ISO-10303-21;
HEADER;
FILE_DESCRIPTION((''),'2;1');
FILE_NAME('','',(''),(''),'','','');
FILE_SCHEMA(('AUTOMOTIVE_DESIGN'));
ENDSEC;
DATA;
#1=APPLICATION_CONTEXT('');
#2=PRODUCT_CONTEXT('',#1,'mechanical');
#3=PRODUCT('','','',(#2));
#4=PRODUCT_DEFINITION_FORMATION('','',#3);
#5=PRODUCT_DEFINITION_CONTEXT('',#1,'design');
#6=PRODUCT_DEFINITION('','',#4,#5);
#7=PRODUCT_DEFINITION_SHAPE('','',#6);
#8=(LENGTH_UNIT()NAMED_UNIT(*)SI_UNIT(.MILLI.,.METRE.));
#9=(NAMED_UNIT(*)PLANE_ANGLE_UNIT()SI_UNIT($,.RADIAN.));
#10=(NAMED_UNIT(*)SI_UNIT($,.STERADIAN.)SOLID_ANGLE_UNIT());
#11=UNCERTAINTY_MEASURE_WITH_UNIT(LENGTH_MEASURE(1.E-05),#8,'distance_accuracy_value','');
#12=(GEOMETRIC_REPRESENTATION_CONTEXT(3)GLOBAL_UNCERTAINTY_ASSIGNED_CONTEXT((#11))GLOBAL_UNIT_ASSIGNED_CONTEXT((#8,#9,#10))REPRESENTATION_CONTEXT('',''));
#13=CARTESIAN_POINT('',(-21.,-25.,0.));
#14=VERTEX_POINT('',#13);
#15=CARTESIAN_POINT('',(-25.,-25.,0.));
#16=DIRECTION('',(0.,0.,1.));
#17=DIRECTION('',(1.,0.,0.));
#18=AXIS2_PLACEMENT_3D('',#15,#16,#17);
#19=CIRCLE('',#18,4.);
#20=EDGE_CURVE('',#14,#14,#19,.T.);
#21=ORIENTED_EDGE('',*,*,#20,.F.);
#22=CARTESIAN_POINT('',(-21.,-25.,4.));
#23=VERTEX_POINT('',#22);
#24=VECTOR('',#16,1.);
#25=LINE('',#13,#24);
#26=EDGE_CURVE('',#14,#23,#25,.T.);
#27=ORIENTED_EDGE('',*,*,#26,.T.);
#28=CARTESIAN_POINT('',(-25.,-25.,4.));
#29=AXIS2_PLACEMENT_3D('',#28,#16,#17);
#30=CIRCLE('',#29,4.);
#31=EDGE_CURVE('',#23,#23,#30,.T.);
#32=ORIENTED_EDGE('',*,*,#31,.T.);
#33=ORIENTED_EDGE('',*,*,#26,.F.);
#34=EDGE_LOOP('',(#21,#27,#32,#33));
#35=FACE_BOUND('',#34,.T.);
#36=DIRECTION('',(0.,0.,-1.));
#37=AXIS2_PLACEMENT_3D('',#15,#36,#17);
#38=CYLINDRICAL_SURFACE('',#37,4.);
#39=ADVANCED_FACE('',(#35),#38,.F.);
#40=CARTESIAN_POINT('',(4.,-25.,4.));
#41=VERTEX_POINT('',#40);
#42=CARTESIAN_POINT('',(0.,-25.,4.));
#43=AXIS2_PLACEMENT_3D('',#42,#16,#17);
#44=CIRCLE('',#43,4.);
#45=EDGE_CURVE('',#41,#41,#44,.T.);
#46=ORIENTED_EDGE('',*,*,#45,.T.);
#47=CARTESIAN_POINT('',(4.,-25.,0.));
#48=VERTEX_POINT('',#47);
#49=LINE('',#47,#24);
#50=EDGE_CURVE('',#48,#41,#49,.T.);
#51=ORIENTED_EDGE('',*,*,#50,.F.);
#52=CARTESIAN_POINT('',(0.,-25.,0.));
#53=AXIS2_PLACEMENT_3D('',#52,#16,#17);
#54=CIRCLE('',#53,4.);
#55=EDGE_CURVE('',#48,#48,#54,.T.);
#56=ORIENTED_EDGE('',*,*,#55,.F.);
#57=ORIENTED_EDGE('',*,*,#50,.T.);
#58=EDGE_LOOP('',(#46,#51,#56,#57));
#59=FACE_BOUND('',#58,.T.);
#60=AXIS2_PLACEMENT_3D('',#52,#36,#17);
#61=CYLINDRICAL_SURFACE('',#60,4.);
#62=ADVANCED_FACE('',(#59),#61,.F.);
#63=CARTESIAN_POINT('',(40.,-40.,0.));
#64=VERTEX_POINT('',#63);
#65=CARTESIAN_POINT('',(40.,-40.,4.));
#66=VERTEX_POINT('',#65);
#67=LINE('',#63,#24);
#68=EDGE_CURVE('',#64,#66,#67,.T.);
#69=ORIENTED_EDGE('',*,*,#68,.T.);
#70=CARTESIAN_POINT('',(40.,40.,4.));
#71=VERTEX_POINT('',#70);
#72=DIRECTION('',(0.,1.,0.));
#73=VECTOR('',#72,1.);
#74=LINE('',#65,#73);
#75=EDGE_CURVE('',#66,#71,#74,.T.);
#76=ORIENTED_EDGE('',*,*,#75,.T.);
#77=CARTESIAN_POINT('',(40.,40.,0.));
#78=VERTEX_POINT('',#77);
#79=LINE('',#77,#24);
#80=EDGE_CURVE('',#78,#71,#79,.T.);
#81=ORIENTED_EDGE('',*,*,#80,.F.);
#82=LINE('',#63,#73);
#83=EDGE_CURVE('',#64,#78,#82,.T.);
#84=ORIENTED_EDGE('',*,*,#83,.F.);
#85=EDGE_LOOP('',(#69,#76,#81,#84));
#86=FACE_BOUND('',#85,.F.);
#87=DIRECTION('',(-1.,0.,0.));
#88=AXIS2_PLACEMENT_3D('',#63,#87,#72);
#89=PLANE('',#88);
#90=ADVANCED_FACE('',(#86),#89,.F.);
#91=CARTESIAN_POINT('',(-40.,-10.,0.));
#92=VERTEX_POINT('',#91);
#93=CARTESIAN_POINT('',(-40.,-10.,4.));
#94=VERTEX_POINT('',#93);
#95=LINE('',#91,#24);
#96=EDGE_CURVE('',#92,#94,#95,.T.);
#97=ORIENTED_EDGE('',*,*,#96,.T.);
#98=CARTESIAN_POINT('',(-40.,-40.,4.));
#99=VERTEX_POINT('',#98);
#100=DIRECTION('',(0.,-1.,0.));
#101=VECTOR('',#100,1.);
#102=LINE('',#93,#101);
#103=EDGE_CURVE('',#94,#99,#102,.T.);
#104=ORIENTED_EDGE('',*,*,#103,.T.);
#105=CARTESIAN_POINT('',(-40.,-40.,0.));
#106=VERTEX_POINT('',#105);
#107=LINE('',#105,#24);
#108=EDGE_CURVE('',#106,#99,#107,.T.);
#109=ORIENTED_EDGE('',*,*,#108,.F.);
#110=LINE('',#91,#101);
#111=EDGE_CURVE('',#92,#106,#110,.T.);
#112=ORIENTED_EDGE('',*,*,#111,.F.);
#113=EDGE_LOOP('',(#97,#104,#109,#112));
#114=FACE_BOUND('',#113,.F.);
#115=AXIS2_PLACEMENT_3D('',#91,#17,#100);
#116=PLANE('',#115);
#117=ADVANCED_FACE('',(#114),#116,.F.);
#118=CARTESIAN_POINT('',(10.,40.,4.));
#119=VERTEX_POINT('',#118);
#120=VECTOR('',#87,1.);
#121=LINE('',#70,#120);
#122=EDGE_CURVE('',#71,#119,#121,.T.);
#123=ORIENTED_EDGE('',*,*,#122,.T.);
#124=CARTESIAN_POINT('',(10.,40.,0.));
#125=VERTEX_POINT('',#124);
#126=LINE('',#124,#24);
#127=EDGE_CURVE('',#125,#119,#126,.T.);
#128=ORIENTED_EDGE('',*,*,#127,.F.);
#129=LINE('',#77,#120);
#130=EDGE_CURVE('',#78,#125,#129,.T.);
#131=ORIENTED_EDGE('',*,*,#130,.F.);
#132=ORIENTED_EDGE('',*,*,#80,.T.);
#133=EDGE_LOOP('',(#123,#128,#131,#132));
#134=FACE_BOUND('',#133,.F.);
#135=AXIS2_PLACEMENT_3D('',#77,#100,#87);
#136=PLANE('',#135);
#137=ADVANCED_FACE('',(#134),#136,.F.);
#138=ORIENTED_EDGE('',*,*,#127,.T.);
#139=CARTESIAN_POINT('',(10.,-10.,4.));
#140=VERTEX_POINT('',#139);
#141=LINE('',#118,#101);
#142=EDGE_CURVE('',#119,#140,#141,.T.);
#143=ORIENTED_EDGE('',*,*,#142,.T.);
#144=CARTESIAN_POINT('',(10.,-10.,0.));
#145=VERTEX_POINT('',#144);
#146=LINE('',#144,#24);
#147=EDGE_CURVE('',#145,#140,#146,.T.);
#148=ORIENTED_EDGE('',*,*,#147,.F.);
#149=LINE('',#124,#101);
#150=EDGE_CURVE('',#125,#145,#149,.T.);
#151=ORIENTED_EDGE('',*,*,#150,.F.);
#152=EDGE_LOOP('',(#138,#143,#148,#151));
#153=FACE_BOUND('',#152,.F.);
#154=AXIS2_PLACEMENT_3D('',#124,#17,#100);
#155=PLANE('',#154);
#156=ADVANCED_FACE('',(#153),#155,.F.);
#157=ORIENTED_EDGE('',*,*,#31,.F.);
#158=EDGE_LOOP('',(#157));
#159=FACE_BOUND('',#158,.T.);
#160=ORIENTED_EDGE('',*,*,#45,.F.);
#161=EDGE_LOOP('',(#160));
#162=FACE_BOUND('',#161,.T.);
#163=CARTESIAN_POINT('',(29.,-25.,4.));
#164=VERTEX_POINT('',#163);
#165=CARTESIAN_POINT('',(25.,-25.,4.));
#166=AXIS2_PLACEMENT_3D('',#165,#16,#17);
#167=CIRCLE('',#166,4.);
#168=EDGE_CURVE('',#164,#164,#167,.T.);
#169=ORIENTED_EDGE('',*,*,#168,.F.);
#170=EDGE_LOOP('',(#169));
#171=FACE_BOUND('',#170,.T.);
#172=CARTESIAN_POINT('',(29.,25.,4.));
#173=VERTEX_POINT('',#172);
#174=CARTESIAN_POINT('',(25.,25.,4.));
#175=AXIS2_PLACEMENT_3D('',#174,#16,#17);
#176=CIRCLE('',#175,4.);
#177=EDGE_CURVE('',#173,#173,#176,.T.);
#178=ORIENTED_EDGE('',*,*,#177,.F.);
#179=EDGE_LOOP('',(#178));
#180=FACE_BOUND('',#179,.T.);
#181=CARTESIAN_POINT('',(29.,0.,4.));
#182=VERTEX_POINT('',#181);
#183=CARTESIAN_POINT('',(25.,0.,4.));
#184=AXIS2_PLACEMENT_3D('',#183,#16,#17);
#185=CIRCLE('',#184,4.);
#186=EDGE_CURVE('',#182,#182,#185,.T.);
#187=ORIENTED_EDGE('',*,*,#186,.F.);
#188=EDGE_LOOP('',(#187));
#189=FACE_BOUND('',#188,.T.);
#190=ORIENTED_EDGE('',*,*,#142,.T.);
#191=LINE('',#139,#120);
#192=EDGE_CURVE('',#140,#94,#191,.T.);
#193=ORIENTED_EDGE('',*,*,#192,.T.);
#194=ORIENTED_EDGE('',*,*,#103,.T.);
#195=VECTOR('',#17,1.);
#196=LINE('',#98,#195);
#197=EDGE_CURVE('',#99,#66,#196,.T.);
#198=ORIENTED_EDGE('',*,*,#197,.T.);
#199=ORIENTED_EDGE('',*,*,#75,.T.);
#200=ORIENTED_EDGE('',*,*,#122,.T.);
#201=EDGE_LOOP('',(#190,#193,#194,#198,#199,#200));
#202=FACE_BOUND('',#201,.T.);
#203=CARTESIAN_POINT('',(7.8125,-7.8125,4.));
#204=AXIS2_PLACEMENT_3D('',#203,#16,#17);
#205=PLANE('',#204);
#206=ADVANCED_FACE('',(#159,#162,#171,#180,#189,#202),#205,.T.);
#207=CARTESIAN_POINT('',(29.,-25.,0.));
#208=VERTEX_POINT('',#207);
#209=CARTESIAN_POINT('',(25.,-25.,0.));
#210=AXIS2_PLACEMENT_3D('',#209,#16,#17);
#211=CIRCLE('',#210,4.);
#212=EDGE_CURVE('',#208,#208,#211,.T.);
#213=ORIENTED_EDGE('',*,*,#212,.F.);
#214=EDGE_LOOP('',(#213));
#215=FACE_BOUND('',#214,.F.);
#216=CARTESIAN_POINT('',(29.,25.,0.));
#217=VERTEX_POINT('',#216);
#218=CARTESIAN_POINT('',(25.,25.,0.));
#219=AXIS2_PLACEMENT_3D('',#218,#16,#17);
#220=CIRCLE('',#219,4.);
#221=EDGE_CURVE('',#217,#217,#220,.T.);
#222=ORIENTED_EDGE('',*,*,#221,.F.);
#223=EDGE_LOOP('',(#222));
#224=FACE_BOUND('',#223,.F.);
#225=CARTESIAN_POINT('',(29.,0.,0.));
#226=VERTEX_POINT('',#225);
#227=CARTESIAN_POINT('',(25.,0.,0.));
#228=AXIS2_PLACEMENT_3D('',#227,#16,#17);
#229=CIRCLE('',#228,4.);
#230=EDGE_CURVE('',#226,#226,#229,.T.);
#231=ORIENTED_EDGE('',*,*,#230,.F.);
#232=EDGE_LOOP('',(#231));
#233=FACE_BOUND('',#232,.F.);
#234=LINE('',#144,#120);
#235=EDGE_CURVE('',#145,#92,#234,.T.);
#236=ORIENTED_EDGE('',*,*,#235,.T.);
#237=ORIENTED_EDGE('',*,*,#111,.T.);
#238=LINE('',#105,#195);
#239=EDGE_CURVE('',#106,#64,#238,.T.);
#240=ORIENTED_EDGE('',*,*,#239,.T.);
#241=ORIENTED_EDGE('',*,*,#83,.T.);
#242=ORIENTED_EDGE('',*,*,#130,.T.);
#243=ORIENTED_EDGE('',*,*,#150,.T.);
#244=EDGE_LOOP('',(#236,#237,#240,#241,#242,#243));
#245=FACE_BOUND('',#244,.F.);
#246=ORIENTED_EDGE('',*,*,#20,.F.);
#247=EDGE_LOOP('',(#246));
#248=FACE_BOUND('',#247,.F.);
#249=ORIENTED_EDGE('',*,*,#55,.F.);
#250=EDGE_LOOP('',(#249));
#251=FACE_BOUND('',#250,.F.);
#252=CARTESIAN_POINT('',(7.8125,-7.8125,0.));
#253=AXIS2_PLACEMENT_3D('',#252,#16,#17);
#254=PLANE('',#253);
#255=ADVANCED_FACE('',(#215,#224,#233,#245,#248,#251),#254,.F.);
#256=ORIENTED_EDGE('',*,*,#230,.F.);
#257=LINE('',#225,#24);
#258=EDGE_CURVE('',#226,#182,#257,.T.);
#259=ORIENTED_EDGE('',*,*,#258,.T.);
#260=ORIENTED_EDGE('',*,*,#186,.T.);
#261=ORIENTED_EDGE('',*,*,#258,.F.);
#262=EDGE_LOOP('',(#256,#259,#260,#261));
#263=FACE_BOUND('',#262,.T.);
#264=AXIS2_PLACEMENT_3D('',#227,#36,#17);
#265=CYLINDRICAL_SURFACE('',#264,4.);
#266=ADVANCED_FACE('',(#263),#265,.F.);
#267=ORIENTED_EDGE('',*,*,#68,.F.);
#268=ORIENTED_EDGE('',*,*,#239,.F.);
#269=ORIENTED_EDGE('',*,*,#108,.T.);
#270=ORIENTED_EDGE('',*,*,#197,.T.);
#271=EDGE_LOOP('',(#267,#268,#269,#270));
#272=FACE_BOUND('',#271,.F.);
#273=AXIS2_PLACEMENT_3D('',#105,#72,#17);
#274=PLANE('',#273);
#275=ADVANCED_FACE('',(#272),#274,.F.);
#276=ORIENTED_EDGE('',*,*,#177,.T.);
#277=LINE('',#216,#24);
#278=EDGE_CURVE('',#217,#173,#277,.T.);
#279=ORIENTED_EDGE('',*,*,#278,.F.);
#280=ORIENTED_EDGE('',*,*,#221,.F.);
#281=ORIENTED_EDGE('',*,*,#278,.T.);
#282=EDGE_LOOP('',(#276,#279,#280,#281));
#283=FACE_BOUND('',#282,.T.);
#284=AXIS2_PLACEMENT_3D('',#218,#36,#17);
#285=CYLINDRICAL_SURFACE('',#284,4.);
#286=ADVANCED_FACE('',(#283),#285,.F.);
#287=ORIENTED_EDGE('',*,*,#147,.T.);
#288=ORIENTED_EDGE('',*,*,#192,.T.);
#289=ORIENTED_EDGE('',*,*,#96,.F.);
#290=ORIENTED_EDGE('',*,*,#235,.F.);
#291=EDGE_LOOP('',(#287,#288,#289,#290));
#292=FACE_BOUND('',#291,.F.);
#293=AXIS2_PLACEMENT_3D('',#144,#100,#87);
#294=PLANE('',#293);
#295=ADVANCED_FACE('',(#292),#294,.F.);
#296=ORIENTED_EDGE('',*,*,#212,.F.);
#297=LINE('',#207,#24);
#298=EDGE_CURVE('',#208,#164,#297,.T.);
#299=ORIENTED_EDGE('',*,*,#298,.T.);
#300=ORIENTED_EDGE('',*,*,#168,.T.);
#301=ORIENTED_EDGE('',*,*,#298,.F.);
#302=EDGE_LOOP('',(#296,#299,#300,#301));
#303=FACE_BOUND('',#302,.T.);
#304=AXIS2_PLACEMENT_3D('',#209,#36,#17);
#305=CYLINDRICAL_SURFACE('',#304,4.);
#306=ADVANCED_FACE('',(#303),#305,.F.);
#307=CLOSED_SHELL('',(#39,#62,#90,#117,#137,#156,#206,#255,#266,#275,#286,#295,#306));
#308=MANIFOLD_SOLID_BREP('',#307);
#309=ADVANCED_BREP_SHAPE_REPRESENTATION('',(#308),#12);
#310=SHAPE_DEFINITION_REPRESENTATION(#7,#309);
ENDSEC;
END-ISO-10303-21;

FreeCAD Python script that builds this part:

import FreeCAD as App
import Part
import Sketcher


def add_polygon(sketch, points):
    """Adds a closed chain of lines whose ends are joined by coincident constraints."""
    first, n = sketch.GeometryCount, len(points)
    for a, b in zip(points, points[1:] + points[:1]):
        sketch.addGeometry(Part.LineSegment(App.Vector(*a, 0), App.Vector(*b, 0)), False)
    for i in range(n):
        sketch.addConstraint(Sketcher.Constraint("Coincident", first + i, 2, first + (i + 1) % n, 1))

doc = App.newDocument("Part")
body = doc.addObject("PartDesign::Body", "Body")

sketch1 = doc.addObject("Sketcher::SketchObject", "Sketch")
body.addObject(sketch1)
sketch1.AttachmentSupport = (doc.XY_Plane, [""])
sketch1.MapMode = "FlatFace"
add_polygon(sketch1, [(40, 40), (10, 40), (10, -10), (-40, -10), (-40, -40), (40, -40)])
sketch1.addGeometry(Part.Circle(App.Vector(-25, -25, 0), App.Vector(0, 0, 1), 4), False)
sketch1.addGeometry(Part.Circle(App.Vector(0, -25, 0), App.Vector(0, 0, 1), 4), False)
sketch1.addGeometry(Part.Circle(App.Vector(25, -25, 0), App.Vector(0, 0, 1), 4), False)
sketch1.addGeometry(Part.Circle(App.Vector(25, 0, 0), App.Vector(0, 0, 1), 4), False)
sketch1.addGeometry(Part.Circle(App.Vector(25, 25, 0), App.Vector(0, 0, 1), 4), False)
sketch1.addConstraint([
    Sketcher.Constraint("Horizontal", 0),
    Sketcher.Constraint("Vertical", 1),
    Sketcher.Constraint("Horizontal", 2),
    Sketcher.Constraint("Vertical", 3),
    Sketcher.Constraint("Horizontal", 4),
    Sketcher.Constraint("Vertical", 5),
    Sketcher.Constraint("Equal", 6, 7),
    Sketcher.Constraint("Equal", 7, 8),
    Sketcher.Constraint("Equal", 8, 9),
    Sketcher.Constraint("Equal", 9, 10),
    Sketcher.Constraint("Symmetric", 6, 3, 10, 3, -1, 1),
    Sketcher.Constraint("Symmetric", 3, 2, 5, 2, -1, 1),
    Sketcher.Constraint("Symmetric", 6, 3, 8, 3, -2),
    Sketcher.Constraint("PointOnObject", 7, 3, -2),
    Sketcher.Constraint("PointOnObject", 9, 3, -1),
    Sketcher.Constraint("Horizontal", 6, 3, 7, 3),
    Sketcher.Constraint("Vertical", 8, 3, 9, 3),
    Sketcher.Constraint("Equal", 2, 1),
    Sketcher.Constraint("Equal", 0, 3),
    Sketcher.Constraint("Diameter", 6, 8.0),
    Sketcher.Constraint("DistanceX", 0, 2, 0, 1, 30.0),
    Sketcher.Constraint("DistanceX", 2, 2, 2, 1, 50.0),
    Sketcher.Constraint("DistanceX", 6, 3, -1, 1, 25.0),
    Sketcher.Constraint("DistanceY", 6, 3, -1, 1, 25.0),
])
pad1 = doc.addObject("PartDesign::Pad", "Pad")
body.addObject(pad1)
pad1.Profile = sketch1
pad1.Length = 4

doc.recompute()
